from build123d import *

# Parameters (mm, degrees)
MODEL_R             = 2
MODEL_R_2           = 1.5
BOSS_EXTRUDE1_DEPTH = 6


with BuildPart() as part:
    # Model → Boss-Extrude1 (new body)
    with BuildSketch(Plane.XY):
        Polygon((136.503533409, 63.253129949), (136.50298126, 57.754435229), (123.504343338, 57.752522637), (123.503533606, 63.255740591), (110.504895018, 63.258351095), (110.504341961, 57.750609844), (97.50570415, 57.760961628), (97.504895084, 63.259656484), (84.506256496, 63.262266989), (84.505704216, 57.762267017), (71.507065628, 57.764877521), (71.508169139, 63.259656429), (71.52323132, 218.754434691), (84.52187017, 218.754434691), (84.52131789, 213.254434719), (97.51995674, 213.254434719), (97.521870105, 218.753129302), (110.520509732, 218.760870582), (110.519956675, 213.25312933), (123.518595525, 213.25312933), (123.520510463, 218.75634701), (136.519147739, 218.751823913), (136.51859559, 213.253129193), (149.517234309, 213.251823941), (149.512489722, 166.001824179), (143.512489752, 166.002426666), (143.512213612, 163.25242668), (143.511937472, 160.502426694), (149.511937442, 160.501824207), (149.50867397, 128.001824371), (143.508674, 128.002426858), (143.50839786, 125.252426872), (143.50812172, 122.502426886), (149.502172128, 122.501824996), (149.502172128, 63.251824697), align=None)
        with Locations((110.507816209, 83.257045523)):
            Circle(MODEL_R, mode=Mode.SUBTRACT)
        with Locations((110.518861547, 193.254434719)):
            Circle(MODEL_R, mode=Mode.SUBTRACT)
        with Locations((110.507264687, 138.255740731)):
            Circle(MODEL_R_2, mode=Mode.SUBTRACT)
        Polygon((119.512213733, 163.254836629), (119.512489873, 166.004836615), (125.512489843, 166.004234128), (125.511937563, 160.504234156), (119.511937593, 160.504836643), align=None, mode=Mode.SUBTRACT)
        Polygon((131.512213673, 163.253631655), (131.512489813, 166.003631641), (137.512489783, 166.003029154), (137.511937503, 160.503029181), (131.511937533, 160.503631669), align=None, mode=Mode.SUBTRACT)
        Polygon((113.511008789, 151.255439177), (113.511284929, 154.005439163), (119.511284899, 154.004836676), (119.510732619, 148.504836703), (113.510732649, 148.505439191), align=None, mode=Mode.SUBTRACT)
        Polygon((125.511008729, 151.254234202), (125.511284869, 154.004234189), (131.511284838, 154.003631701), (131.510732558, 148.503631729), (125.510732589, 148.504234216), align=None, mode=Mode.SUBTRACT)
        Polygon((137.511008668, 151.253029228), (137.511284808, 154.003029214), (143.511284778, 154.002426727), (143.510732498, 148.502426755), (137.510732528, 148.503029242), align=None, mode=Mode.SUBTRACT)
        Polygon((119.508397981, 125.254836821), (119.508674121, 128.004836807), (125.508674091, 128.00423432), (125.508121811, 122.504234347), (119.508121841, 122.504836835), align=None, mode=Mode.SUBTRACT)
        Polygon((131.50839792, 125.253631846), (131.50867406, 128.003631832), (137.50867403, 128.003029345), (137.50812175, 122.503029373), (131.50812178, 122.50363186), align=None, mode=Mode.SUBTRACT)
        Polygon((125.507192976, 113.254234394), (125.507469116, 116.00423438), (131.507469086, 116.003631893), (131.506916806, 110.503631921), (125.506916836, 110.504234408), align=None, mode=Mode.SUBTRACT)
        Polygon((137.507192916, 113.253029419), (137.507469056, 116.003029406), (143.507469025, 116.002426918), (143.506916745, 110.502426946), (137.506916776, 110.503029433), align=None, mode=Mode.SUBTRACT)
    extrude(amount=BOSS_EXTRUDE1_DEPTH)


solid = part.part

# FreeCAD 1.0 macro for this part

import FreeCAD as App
import Part
import Sketcher
Q = App.Units.Quantity

doc = App.newDocument("Part")
body = doc.addObject("PartDesign::Body", "Body")

sketch1 = body.newObject("Sketcher::SketchObject", "Sketch")
sketch1.AttachmentSupport = (doc.getObject("XY_Plane"), [""])
sketch1.MapMode = "FlatFace"
sketch1.addGeometry(Part.LineSegment(App.Vector(136.5, 57.8, 0), App.Vector(136.5, 63.3, 0)), False)
sketch1.addGeometry(Part.LineSegment(App.Vector(136.5, 63.3, 0), App.Vector(149.5, 63.3, 0)), False)
sketch1.addGeometry(Part.LineSegment(App.Vector(149.5, 63.3, 0), App.Vector(149.5, 122.5, 0)), False)
sketch1.addGeometry(Part.LineSegment(App.Vector(149.5, 122.5, 0), App.Vector(143.5, 122.5, 0)), False)
sketch1.addGeometry(Part.LineSegment(App.Vector(143.5, 122.5, 0), App.Vector(143.5, 128, 0)), False)
sketch1.addGeometry(Part.LineSegment(App.Vector(143.5, 128, 0), App.Vector(149.5, 128, 0)), False)
sketch1.addGeometry(Part.LineSegment(App.Vector(149.5, 128, 0), App.Vector(149.5, 160.5, 0)), False)
sketch1.addGeometry(Part.LineSegment(App.Vector(149.5, 160.5, 0), App.Vector(143.5, 160.5, 0)), False)
sketch1.addGeometry(Part.LineSegment(App.Vector(143.5, 160.5, 0), App.Vector(143.5, 166, 0)), False)
sketch1.addGeometry(Part.LineSegment(App.Vector(143.5, 166, 0), App.Vector(149.5, 166, 0)), False)
sketch1.addGeometry(Part.LineSegment(App.Vector(149.5, 166, 0), App.Vector(149.5, 213.3, 0)), False)
sketch1.addGeometry(Part.LineSegment(App.Vector(149.5, 213.3, 0), App.Vector(136.5, 213.3, 0)), False)
sketch1.addGeometry(Part.LineSegment(App.Vector(136.5, 213.3, 0), App.Vector(136.5, 218.8, 0)), False)
sketch1.addGeometry(Part.LineSegment(App.Vector(136.5, 218.8, 0), App.Vector(123.5, 218.8, 0)), False)
sketch1.addGeometry(Part.LineSegment(App.Vector(123.5, 218.8, 0), App.Vector(123.5, 213.3, 0)), False)
sketch1.addGeometry(Part.LineSegment(App.Vector(123.5, 213.3, 0), App.Vector(110.5, 213.3, 0)), False)
sketch1.addGeometry(Part.LineSegment(App.Vector(110.5, 213.3, 0), App.Vector(110.5, 218.8, 0)), False)
sketch1.addGeometry(Part.LineSegment(App.Vector(110.5, 218.8, 0), App.Vector(97.5, 218.8, 0)), False)
sketch1.addGeometry(Part.LineSegment(App.Vector(97.5, 218.8, 0), App.Vector(97.5, 213.3, 0)), False)
sketch1.addGeometry(Part.LineSegment(App.Vector(97.5, 213.3, 0), App.Vector(84.5, 213.3, 0)), False)
sketch1.addGeometry(Part.LineSegment(App.Vector(84.5, 213.3, 0), App.Vector(84.5, 218.8, 0)), False)
sketch1.addGeometry(Part.LineSegment(App.Vector(84.5, 218.8, 0), App.Vector(71.5, 218.8, 0)), False)
sketch1.addGeometry(Part.LineSegment(App.Vector(71.5, 218.8, 0), App.Vector(71.5, 63.3, 0)), False)
sketch1.addGeometry(Part.LineSegment(App.Vector(71.5, 63.3, 0), App.Vector(71.5, 57.8, 0)), False)
sketch1.addGeometry(Part.LineSegment(App.Vector(71.5, 57.8, 0), App.Vector(84.5, 57.8, 0)), False)
sketch1.addGeometry(Part.LineSegment(App.Vector(84.5, 57.8, 0), App.Vector(84.5, 63.3, 0)), False)
sketch1.addGeometry(Part.LineSegment(App.Vector(84.5, 63.3, 0), App.Vector(97.5, 63.3, 0)), False)
sketch1.addGeometry(Part.LineSegment(App.Vector(97.5, 63.3, 0), App.Vector(97.5, 57.8, 0)), False)
sketch1.addGeometry(Part.LineSegment(App.Vector(97.5, 57.8, 0), App.Vector(110.5, 57.8, 0)), False)
sketch1.addGeometry(Part.LineSegment(App.Vector(110.5, 57.8, 0), App.Vector(110.5, 63.3, 0)), False)
sketch1.addGeometry(Part.LineSegment(App.Vector(110.5, 63.3, 0), App.Vector(123.5, 63.3, 0)), False)
sketch1.addGeometry(Part.LineSegment(App.Vector(123.5, 63.3, 0), App.Vector(123.5, 57.8, 0)), False)
sketch1.addGeometry(Part.LineSegment(App.Vector(123.5, 57.8, 0), App.Vector(136.5, 57.8, 0)), False)
sketch1.addGeometry(Part.LineSegment(App.Vector(137.5, 116, 0), App.Vector(143.5, 116, 0)), False)
sketch1.addGeometry(Part.LineSegment(App.Vector(143.5, 116, 0), App.Vector(143.5, 110.5, 0)), False)
sketch1.addGeometry(Part.LineSegment(App.Vector(143.5, 110.5, 0), App.Vector(137.5, 110.5, 0)), False)
sketch1.addGeometry(Part.LineSegment(App.Vector(137.5, 110.5, 0), App.Vector(137.5, 116, 0)), False)
sketch1.addGeometry(Part.LineSegment(App.Vector(125.5, 116, 0), App.Vector(131.5, 116, 0)), False)
sketch1.addGeometry(Part.LineSegment(App.Vector(131.5, 116, 0), App.Vector(131.5, 110.5, 0)), False)
sketch1.addGeometry(Part.LineSegment(App.Vector(131.5, 110.5, 0), App.Vector(125.5, 110.5, 0)), False)
sketch1.addGeometry(Part.LineSegment(App.Vector(125.5, 110.5, 0), App.Vector(125.5, 116, 0)), False)
sketch1.addGeometry(Part.LineSegment(App.Vector(131.5, 128, 0), App.Vector(137.5, 128, 0)), False)
sketch1.addGeometry(Part.LineSegment(App.Vector(137.5, 128, 0), App.Vector(137.5, 122.5, 0)), False)
sketch1.addGeometry(Part.LineSegment(App.Vector(137.5, 122.5, 0), App.Vector(131.5, 122.5, 0)), False)
sketch1.addGeometry(Part.LineSegment(App.Vector(131.5, 122.5, 0), App.Vector(131.5, 128, 0)), False)
sketch1.addGeometry(Part.Circle(App.Vector(110.5, 83.3, 0), App.Vector(0, 0, 1), 2), False)
sketch1.addGeometry(Part.LineSegment(App.Vector(119.5, 128, 0), App.Vector(125.5, 128, 0)), False)
sketch1.addGeometry(Part.LineSegment(App.Vector(125.5, 128, 0), App.Vector(125.5, 122.5, 0)), False)
sketch1.addGeometry(Part.LineSegment(App.Vector(125.5, 122.5, 0), App.Vector(119.5, 122.5, 0)), False)
sketch1.addGeometry(Part.LineSegment(App.Vector(119.5, 122.5, 0), App.Vector(119.5, 128, 0)), False)
sketch1.addGeometry(Part.LineSegment(App.Vector(137.5, 154, 0), App.Vector(143.5, 154, 0)), False)
sketch1.addGeometry(Part.LineSegment(App.Vector(143.5, 154, 0), App.Vector(143.5, 148.5, 0)), False)
sketch1.addGeometry(Part.LineSegment(App.Vector(143.5, 148.5, 0), App.Vector(137.5, 148.5, 0)), False)
sketch1.addGeometry(Part.LineSegment(App.Vector(137.5, 148.5, 0), App.Vector(137.5, 154, 0)), False)
sketch1.addGeometry(Part.LineSegment(App.Vector(125.5, 154, 0), App.Vector(131.5, 154, 0)), False)
sketch1.addGeometry(Part.LineSegment(App.Vector(131.5, 154, 0), App.Vector(131.5, 148.5, 0)), False)
sketch1.addGeometry(Part.LineSegment(App.Vector(131.5, 148.5, 0), App.Vector(125.5, 148.5, 0)), False)
sketch1.addGeometry(Part.LineSegment(App.Vector(125.5, 148.5, 0), App.Vector(125.5, 154, 0)), False)
sketch1.addGeometry(Part.LineSegment(App.Vector(131.5, 166, 0), App.Vector(137.5, 166, 0)), False)
sketch1.addGeometry(Part.LineSegment(App.Vector(137.5, 166, 0), App.Vector(137.5, 160.5, 0)), False)
sketch1.addGeometry(Part.LineSegment(App.Vector(137.5, 160.5, 0), App.Vector(131.5, 160.5, 0)), False)
sketch1.addGeometry(Part.LineSegment(App.Vector(131.5, 160.5, 0), App.Vector(131.5, 166, 0)), False)
sketch1.addGeometry(Part.LineSegment(App.Vector(119.5, 166, 0), App.Vector(125.5, 166, 0)), False)
sketch1.addGeometry(Part.LineSegment(App.Vector(125.5, 166, 0), App.Vector(125.5, 160.5, 0)), False)
sketch1.addGeometry(Part.LineSegment(App.Vector(125.5, 160.5, 0), App.Vector(119.5, 160.5, 0)), False)
sketch1.addGeometry(Part.LineSegment(App.Vector(119.5, 160.5, 0), App.Vector(119.5, 166, 0)), False)
sketch1.addGeometry(Part.LineSegment(App.Vector(113.5, 154, 0), App.Vector(119.5, 154, 0)), False)
sketch1.addGeometry(Part.LineSegment(App.Vector(119.5, 154, 0), App.Vector(119.5, 148.5, 0)), False)
sketch1.addGeometry(Part.LineSegment(App.Vector(119.5, 148.5, 0), App.Vector(113.5, 148.5, 0)), False)
sketch1.addGeometry(Part.LineSegment(App.Vector(113.5, 148.5, 0), App.Vector(113.5, 154, 0)), False)
sketch1.addGeometry(Part.Circle(App.Vector(110.5, 138.3, 0), App.Vector(0, 0, 1), 1.5), False)
sketch1.addGeometry(Part.Circle(App.Vector(110.5, 193.3, 0), App.Vector(0, 0, 1), 2), False)
sketch1.addConstraint(Sketcher.Constraint("Coincident", 0, 2, 1, 1))
sketch1.addConstraint(Sketcher.Constraint("Coincident", 1, 2, 2, 1))
sketch1.addConstraint(Sketcher.Constraint("Coincident", 2, 2, 3, 1))
sketch1.addConstraint(Sketcher.Constraint("Coincident", 3, 2, 4, 1))
sketch1.addConstraint(Sketcher.Constraint("Coincident", 4, 2, 5, 1))
sketch1.addConstraint(Sketcher.Constraint("Coincident", 5, 2, 6, 1))
sketch1.addConstraint(Sketcher.Constraint("Coincident", 6, 2, 7, 1))
sketch1.addConstraint(Sketcher.Constraint("Coincident", 7, 2, 8, 1))
sketch1.addConstraint(Sketcher.Constraint("Coincident", 8, 2, 9, 1))
sketch1.addConstraint(Sketcher.Constraint("Coincident", 9, 2, 10, 1))
sketch1.addConstraint(Sketcher.Constraint("Coincident", 10, 2, 11, 1))
sketch1.addConstraint(Sketcher.Constraint("Coincident", 11, 2, 12, 1))
sketch1.addConstraint(Sketcher.Constraint("Coincident", 12, 2, 13, 1))
sketch1.addConstraint(Sketcher.Constraint("Coincident", 13, 2, 14, 1))
sketch1.addConstraint(Sketcher.Constraint("Coincident", 14, 2, 15, 1))
sketch1.addConstraint(Sketcher.Constraint("Coincident", 15, 2, 16, 1))
sketch1.addConstraint(Sketcher.Constraint("Coincident", 16, 2, 17, 1))
sketch1.addConstraint(Sketcher.Constraint("Coincident", 17, 2, 18, 1))
sketch1.addConstraint(Sketcher.Constraint("Coincident", 18, 2, 19, 1))
sketch1.addConstraint(Sketcher.Constraint("Coincident", 19, 2, 20, 1))
sketch1.addConstraint(Sketcher.Constraint("Coincident", 20, 2, 21, 1))
sketch1.addConstraint(Sketcher.Constraint("Coincident", 21, 2, 22, 1))
sketch1.addConstraint(Sketcher.Constraint("Coincident", 22, 2, 23, 1))
sketch1.addConstraint(Sketcher.Constraint("Coincident", 23, 2, 24, 1))
sketch1.addConstraint(Sketcher.Constraint("Coincident", 24, 2, 25, 1))
sketch1.addConstraint(Sketcher.Constraint("Coincident", 25, 2, 26, 1))
sketch1.addConstraint(Sketcher.Constraint("Coincident", 26, 2, 27, 1))
sketch1.addConstraint(Sketcher.Constraint("Coincident", 27, 2, 28, 1))
sketch1.addConstraint(Sketcher.Constraint("Coincident", 28, 2, 29, 1))
sketch1.addConstraint(Sketcher.Constraint("Coincident", 29, 2, 30, 1))
sketch1.addConstraint(Sketcher.Constraint("Coincident", 30, 2, 31, 1))
sketch1.addConstraint(Sketcher.Constraint("Coincident", 31, 2, 32, 1))
sketch1.addConstraint(Sketcher.Constraint("Coincident", 32, 2, 0, 1))
sketch1.addConstraint(Sketcher.Constraint("Coincident", 33, 2, 34, 1))
sketch1.addConstraint(Sketcher.Constraint("Coincident", 34, 2, 35, 1))
sketch1.addConstraint(Sketcher.Constraint("Coincident", 35, 2, 36, 1))
sketch1.addConstraint(Sketcher.Constraint("Coincident", 36, 2, 33, 1))
sketch1.addConstraint(Sketcher.Constraint("Coincident", 37, 2, 38, 1))
sketch1.addConstraint(Sketcher.Constraint("Coincident", 38, 2, 39, 1))
sketch1.addConstraint(Sketcher.Constraint("Coincident", 39, 2, 40, 1))
sketch1.addConstraint(Sketcher.Constraint("Coincident", 40, 2, 37, 1))
sketch1.addConstraint(Sketcher.Constraint("Coincident", 41, 2, 42, 1))
sketch1.addConstraint(Sketcher.Constraint("Coincident", 42, 2, 43, 1))
sketch1.addConstraint(Sketcher.Constraint("Coincident", 43, 2, 44, 1))
sketch1.addConstraint(Sketcher.Constraint("Coincident", 44, 2, 41, 1))
sketch1.addConstraint(Sketcher.Constraint("Coincident", 46, 2, 47, 1))
sketch1.addConstraint(Sketcher.Constraint("Coincident", 47, 2, 48, 1))
sketch1.addConstraint(Sketcher.Constraint("Coincident", 48, 2, 49, 1))
sketch1.addConstraint(Sketcher.Constraint("Coincident", 49, 2, 46, 1))
sketch1.addConstraint(Sketcher.Constraint("Coincident", 50, 2, 51, 1))
sketch1.addConstraint(Sketcher.Constraint("Coincident", 51, 2, 52, 1))
sketch1.addConstraint(Sketcher.Constraint("Coincident", 52, 2, 53, 1))
sketch1.addConstraint(Sketcher.Constraint("Coincident", 53, 2, 50, 1))
sketch1.addConstraint(Sketcher.Constraint("Coincident", 54, 2, 55, 1))
sketch1.addConstraint(Sketcher.Constraint("Coincident", 55, 2, 56, 1))
sketch1.addConstraint(Sketcher.Constraint("Coincident", 56, 2, 57, 1))
sketch1.addConstraint(Sketcher.Constraint("Coincident", 57, 2, 54, 1))
sketch1.addConstraint(Sketcher.Constraint("Coincident", 58, 2, 59, 1))
sketch1.addConstraint(Sketcher.Constraint("Coincident", 59, 2, 60, 1))
sketch1.addConstraint(Sketcher.Constraint("Coincident", 60, 2, 61, 1))
sketch1.addConstraint(Sketcher.Constraint("Coincident", 61, 2, 58, 1))
sketch1.addConstraint(Sketcher.Constraint("Coincident", 62, 2, 63, 1))
sketch1.addConstraint(Sketcher.Constraint("Coincident", 63, 2, 64, 1))
sketch1.addConstraint(Sketcher.Constraint("Coincident", 64, 2, 65, 1))
sketch1.addConstraint(Sketcher.Constraint("Coincident", 65, 2, 62, 1))
sketch1.addConstraint(Sketcher.Constraint("Coincident", 66, 2, 67, 1))
sketch1.addConstraint(Sketcher.Constraint("Coincident", 67, 2, 68, 1))
sketch1.addConstraint(Sketcher.Constraint("Coincident", 68, 2, 69, 1))
sketch1.addConstraint(Sketcher.Constraint("Coincident", 69, 2, 66, 1))
sketch1.addConstraint(Sketcher.Constraint("Vertical", 2))
sketch1.addConstraint(Sketcher.Constraint("Horizontal", 15))
sketch1.addConstraint(Sketcher.Constraint("Horizontal", 19))
sketch1.addConstraint(Sketcher.Constraint("Horizontal", 21))
sketch1.addConstraint(Sketcher.Constraint("Equal", 45, 71))
sketch1.addConstraint(Sketcher.Constraint("Perpendicular", 0, 1))
sketch1.addConstraint(Sketcher.Constraint("Parallel", 1, 3))
sketch1.addConstraint(Sketcher.Constraint("Perpendicular", 3, 4))
sketch1.addConstraint(Sketcher.Constraint("Perpendicular", 4, 5))
sketch1.addConstraint(Sketcher.Constraint("Perpendicular", 5, 6))
sketch1.addConstraint(Sketcher.Constraint("Perpendicular", 6, 7))
sketch1.addConstraint(Sketcher.Constraint("Perpendicular", 7, 8))
sketch1.addConstraint(Sketcher.Constraint("Perpendicular", 8, 9))
sketch1.addConstraint(Sketcher.Constraint("Perpendicular", 9, 10))
sketch1.addConstraint(Sketcher.Constraint("Perpendicular", 10, 11))
sketch1.addConstraint(Sketcher.Constraint("Perpendicular", 11, 12))
sketch1.addConstraint(Sketcher.Constraint("Perpendicular", 13, 14))
sketch1.addConstraint(Sketcher.Constraint("Parallel", 12, 16))
sketch1.addConstraint(Sketcher.Constraint("Parallel", 14, 18))
sketch1.addConstraint(Sketcher.Constraint("Parallel", 16, 20))
sketch1.addConstraint(Sketcher.Constraint("Perpendicular", 23, 24))
sketch1.addConstraint(Sketcher.Constraint("Parallel", 20, 25))
sketch1.addConstraint(Sketcher.Constraint("Parallel", 24, 26))
sketch1.addConstraint(Sketcher.Constraint("Parallel", 25, 29))
sketch1.addConstraint(Sketcher.Constraint("Parallel", 26, 30))
sketch1.addConstraint(Sketcher.Constraint("Parallel", 27, 31))
sketch1.addConstraint(Sketcher.Constraint("Perpendicular", 31, 32))
sketch1.addConstraint(Sketcher.Constraint("Perpendicular", 29, 33))
sketch1.addConstraint(Sketcher.Constraint("Perpendicular", 33, 34))
sketch1.addConstraint(Sketcher.Constraint("Perpendicular", 34, 35))
sketch1.addConstraint(Sketcher.Constraint("Perpendicular", 35, 36))
sketch1.addConstraint(Sketcher.Constraint("Perpendicular", 36, 37))
sketch1.addConstraint(Sketcher.Constraint("Perpendicular", 37, 38))
sketch1.addConstraint(Sketcher.Constraint("Perpendicular", 38, 39))
sketch1.addConstraint(Sketcher.Constraint("Perpendicular", 39, 40))
sketch1.addConstraint(Sketcher.Constraint("Perpendicular", 40, 41))
sketch1.addConstraint(Sketcher.Constraint("Perpendicular", 41, 42))
sketch1.addConstraint(Sketcher.Constraint("Perpendicular", 42, 43))
sketch1.addConstraint(Sketcher.Constraint("Perpendicular", 43, 44))
sketch1.addConstraint(Sketcher.Constraint("Perpendicular", 44, 46))
sketch1.addConstraint(Sketcher.Constraint("Perpendicular", 46, 47))
sketch1.addConstraint(Sketcher.Constraint("Perpendicular", 47, 48))
sketch1.addConstraint(Sketcher.Constraint("Perpendicular", 48, 49))
sketch1.addConstraint(Sketcher.Constraint("Perpendicular", 49, 50))
sketch1.addConstraint(Sketcher.Constraint("Perpendicular", 50, 51))
sketch1.addConstraint(Sketcher.Constraint("Perpendicular", 51, 52))
sketch1.addConstraint(Sketcher.Constraint("Perpendicular", 52, 53))
sketch1.addConstraint(Sketcher.Constraint("Perpendicular", 53, 54))
sketch1.addConstraint(Sketcher.Constraint("Perpendicular", 54, 55))
sketch1.addConstraint(Sketcher.Constraint("Perpendicular", 55, 56))
sketch1.addConstraint(Sketcher.Constraint("Perpendicular", 56, 57))
sketch1.addConstraint(Sketcher.Constraint("Perpendicular", 57, 58))
sketch1.addConstraint(Sketcher.Constraint("Perpendicular", 58, 59))
sketch1.addConstraint(Sketcher.Constraint("Perpendicular", 59, 60))
sketch1.addConstraint(Sketcher.Constraint("Perpendicular", 60, 61))
sketch1.addConstraint(Sketcher.Constraint("Perpendicular", 61, 62))
sketch1.addConstraint(Sketcher.Constraint("Perpendicular", 62, 63))
sketch1.addConstraint(Sketcher.Constraint("Perpendicular", 63, 64))
sketch1.addConstraint(Sketcher.Constraint("Perpendicular", 64, 65))
sketch1.addConstraint(Sketcher.Constraint("Perpendicular", 65, 66))
sketch1.addConstraint(Sketcher.Constraint("Perpendicular", 66, 67))
sketch1.addConstraint(Sketcher.Constraint("Perpendicular", 67, 68))
sketch1.addConstraint(Sketcher.Constraint("Perpendicular", 68, 69))
sketch1.addConstraint(Sketcher.Constraint("Horizontal", 11, 2, 14, 2))
sketch1.addConstraint(Sketcher.Constraint("Horizontal", 22, 2, 26, 2))
sketch1.addConstraint(Sketcher.Constraint("Equal", 15, 19))
sketch1.addConstraint(Sketcher.Constraint("Equal", 19, 21))
sketch1.addConstraint(Sketcher.Constraint("Equal", 5, 7))
sketch1.addConstraint(Sketcher.Constraint("Equal", 4, 8))
sketch1.addConstraint(Sketcher.Constraint("Equal", 7, 9))
sketch1.addConstraint(Sketcher.Constraint("Equal", 1, 11))
sketch1.addConstraint(Sketcher.Constraint("Equal", 0, 12))
sketch1.addConstraint(Sketcher.Constraint("Equal", 11, 13))
sketch1.addConstraint(Sketcher.Constraint("Equal", 12, 18))
sketch1.addConstraint(Sketcher.Constraint("Equal", 8, 20))
sketch1.addConstraint(Sketcher.Constraint("Equal", 13, 24))
sketch1.addConstraint(Sketcher.Constraint("Equal", 20, 25))
sketch1.addConstraint(Sketcher.Constraint("Equal", 24, 26))
sketch1.addConstraint(Sketcher.Constraint("Equal", 18, 27))
sketch1.addConstraint(Sketcher.Constraint("Equal", 17, 28))
sketch1.addConstraint(Sketcher.Constraint("Equal", 16, 29))
sketch1.addConstraint(Sketcher.Constraint("Equal", 26, 30))
sketch1.addConstraint(Sketcher.Constraint("Equal", 14, 31))
sketch1.addConstraint(Sketcher.Constraint("Equal", 30, 32))
sketch1.addConstraint(Sketcher.Constraint("Equal", 9, 33))
sketch1.addConstraint(Sketcher.Constraint("Equal", 25, 34))
sketch1.addConstraint(Sketcher.Constraint("Equal", 35, 37))
sketch1.addConstraint(Sketcher.Constraint("Equal", 36, 38))
sketch1.addConstraint(Sketcher.Constraint("Equal", 39, 41))
sketch1.addConstraint(Sketcher.Constraint("Equal", 40, 42))
sketch1.addConstraint(Sketcher.Constraint("Equal", 43, 46))
sketch1.addConstraint(Sketcher.Constraint("Equal", 44, 47))
sketch1.addConstraint(Sketcher.Constraint("Equal", 48, 50))
sketch1.addConstraint(Sketcher.Constraint("Equal", 49, 51))
sketch1.addConstraint(Sketcher.Constraint("Equal", 52, 54))
sketch1.addConstraint(Sketcher.Constraint("Equal", 53, 55))
sketch1.addConstraint(Sketcher.Constraint("Equal", 56, 58))
sketch1.addConstraint(Sketcher.Constraint("Equal", 57, 59))
sketch1.addConstraint(Sketcher.Constraint("Equal", 60, 62))
sketch1.addConstraint(Sketcher.Constraint("Equal", 61, 63))
sketch1.addConstraint(Sketcher.Constraint("Equal", 64, 66))
sketch1.addConstraint(Sketcher.Constraint("Equal", 65, 67))
sketch1.addConstraint(Sketcher.Constraint("Diameter", 45, Q("4 mm")))
sketch1.addConstraint(Sketcher.Constraint("Diameter", 70, Q("3 mm")))
sketch1.addConstraint(Sketcher.Constraint("Distance", 5, Q("6 mm")))
sketch1.addConstraint(Sketcher.Constraint("Distance", 4, Q("5.5 mm")))
sketch1.addConstraint(Sketcher.Constraint("Distance", 6, Q("32.5 mm")))
sketch1.addConstraint(Sketcher.Constraint("DistanceY", 2, 1, 2, 2, Q("59.25 mm")))
sketch1.addConstraint(Sketcher.Constraint("Distance", 10, Q("47.25 mm")))
sketch1.addConstraint(Sketcher.Constraint("DistanceX", 15, 2, 15, 1, Q("12.998639 mm")))
sketch1.addConstraint(Sketcher.Constraint("Distance", 1, Q("12.998639 mm")))
sketch1.addConstraint(Sketcher.Constraint("Distance", 3, Q("5.99405 mm")))
sketch1.addConstraint(Sketcher.Constraint("Distance", 14, Q("5.503218 mm")))
sketch1.addConstraint(Sketcher.Constraint("Distance", 16, Q("5.507741 mm")))
sketch1.addConstraint(Sketcher.Constraint("Distance", 17, Q("12.998642 mm")))
sketch1.addConstraint(Sketcher.Constraint("Distance", 22, Q("155.494779 mm")))
sketch1.addConstraint(Sketcher.Constraint("Distance", 23, Q("5.494779 mm")))
sketch1.addConstraint(Sketcher.Constraint("DistanceY", -1, 1, 70, 3, Q("138.255741 mm")))
sketch1.addConstraint(Sketcher.Constraint("DistanceX", -1, 1, 71, 3, Q("110.518862 mm")))
sketch1.addConstraint(Sketcher.Constraint("DistanceY", -1, 1, 0, 2, Q("63.25313 mm")))
sketch1.addConstraint(Sketcher.Constraint("DistanceX", -1, 1, 3, 2, Q("143.508122 mm")))
sketch1.addConstraint(Sketcher.Constraint("DistanceX", -1, 1, 8, 2, Q("143.51249 mm")))
sketch1.addConstraint(Sketcher.Constraint("DistanceX", -1, 1, 16, 2, Q("110.52051 mm")))
sketch1.addConstraint(Sketcher.Constraint("DistanceY", -1, 1, 17, 2, Q("218.753129 mm")))
sketch1.addConstraint(Sketcher.Constraint("DistanceX", -1, 1, 22, 2, Q("71.508169 mm")))
sketch1.addConstraint(Sketcher.Constraint("DistanceX", -1, 1, 33, 2, Q("143.507469 mm")))
sketch1.addConstraint(Sketcher.Constraint("DistanceY", -1, 1, 35, 2, Q("110.503029 mm")))
sketch1.addConstraint(Sketcher.Constraint("DistanceX", -1, 1, 37, 2, Q("131.507469 mm")))
sketch1.addConstraint(Sketcher.Constraint("DistanceY", -1, 1, 37, 2, Q("116.003632 mm")))
sketch1.addConstraint(Sketcher.Constraint("DistanceY", -1, 1, 41, 2, Q("128.003029 mm")))
sketch1.addConstraint(Sketcher.Constraint("DistanceX", -1, 1, 42, 2, Q("137.508122 mm")))
sketch1.addConstraint(Sketcher.Constraint("DistanceX", -1, 1, 47, 2, Q("125.508122 mm")))
sketch1.addConstraint(Sketcher.Constraint("DistanceY", -1, 1, 52, 2, Q("148.503029 mm")))
sketch1.addConstraint(Sketcher.Constraint("DistanceY", -1, 1, 54, 2, Q("154.003632 mm")))
sketch1.addConstraint(Sketcher.Constraint("DistanceX", -1, 1, 58, 2, Q("137.51249 mm")))
sketch1.addConstraint(Sketcher.Constraint("DistanceY", -1, 1, 58, 2, Q("166.003029 mm")))
sketch1.addConstraint(Sketcher.Constraint("DistanceX", -1, 1, 62, 2, Q("125.51249 mm")))
sketch1.addConstraint(Sketcher.Constraint("DistanceY", -1, 1, 68, 2, Q("148.505439 mm")))
sketch1.addConstraint(Sketcher.Constraint("DistanceX", -1, 1, 45, 3, Q("110.507816 mm")))
sketch1.addConstraint(Sketcher.Constraint("DistanceY", -1, 1, 45, 3, Q("83.257046 mm")))
sketch1.addConstraint(Sketcher.Constraint("DistanceX", -1, 1, 70, 3, Q("110.507265 mm")))
sketch1.addConstraint(Sketcher.Constraint("DistanceY", -1, 1, 71, 3, Q("193.254435 mm")))
sketch1.addConstraint(Sketcher.Constraint("DistanceY", -1, 1, 46, 2, Q("128.004234 mm")))
sketch1.addConstraint(Sketcher.Constraint("DistanceX", -1, 1, 50, 2, Q("143.511285 mm")))
sketch1.addConstraint(Sketcher.Constraint("DistanceX", -1, 1, 54, 2, Q("131.511285 mm")))
sketch1.addConstraint(Sketcher.Constraint("DistanceY", -1, 1, 62, 2, Q("166.004234 mm")))
sketch1.addConstraint(Sketcher.Constraint("DistanceX", -1, 1, 66, 2, Q("119.511285 mm")))
pad1 = body.newObject("PartDesign::Pad", "Pad")
pad1.Profile = sketch1
pad1.Length = 6

doc.recompute()
